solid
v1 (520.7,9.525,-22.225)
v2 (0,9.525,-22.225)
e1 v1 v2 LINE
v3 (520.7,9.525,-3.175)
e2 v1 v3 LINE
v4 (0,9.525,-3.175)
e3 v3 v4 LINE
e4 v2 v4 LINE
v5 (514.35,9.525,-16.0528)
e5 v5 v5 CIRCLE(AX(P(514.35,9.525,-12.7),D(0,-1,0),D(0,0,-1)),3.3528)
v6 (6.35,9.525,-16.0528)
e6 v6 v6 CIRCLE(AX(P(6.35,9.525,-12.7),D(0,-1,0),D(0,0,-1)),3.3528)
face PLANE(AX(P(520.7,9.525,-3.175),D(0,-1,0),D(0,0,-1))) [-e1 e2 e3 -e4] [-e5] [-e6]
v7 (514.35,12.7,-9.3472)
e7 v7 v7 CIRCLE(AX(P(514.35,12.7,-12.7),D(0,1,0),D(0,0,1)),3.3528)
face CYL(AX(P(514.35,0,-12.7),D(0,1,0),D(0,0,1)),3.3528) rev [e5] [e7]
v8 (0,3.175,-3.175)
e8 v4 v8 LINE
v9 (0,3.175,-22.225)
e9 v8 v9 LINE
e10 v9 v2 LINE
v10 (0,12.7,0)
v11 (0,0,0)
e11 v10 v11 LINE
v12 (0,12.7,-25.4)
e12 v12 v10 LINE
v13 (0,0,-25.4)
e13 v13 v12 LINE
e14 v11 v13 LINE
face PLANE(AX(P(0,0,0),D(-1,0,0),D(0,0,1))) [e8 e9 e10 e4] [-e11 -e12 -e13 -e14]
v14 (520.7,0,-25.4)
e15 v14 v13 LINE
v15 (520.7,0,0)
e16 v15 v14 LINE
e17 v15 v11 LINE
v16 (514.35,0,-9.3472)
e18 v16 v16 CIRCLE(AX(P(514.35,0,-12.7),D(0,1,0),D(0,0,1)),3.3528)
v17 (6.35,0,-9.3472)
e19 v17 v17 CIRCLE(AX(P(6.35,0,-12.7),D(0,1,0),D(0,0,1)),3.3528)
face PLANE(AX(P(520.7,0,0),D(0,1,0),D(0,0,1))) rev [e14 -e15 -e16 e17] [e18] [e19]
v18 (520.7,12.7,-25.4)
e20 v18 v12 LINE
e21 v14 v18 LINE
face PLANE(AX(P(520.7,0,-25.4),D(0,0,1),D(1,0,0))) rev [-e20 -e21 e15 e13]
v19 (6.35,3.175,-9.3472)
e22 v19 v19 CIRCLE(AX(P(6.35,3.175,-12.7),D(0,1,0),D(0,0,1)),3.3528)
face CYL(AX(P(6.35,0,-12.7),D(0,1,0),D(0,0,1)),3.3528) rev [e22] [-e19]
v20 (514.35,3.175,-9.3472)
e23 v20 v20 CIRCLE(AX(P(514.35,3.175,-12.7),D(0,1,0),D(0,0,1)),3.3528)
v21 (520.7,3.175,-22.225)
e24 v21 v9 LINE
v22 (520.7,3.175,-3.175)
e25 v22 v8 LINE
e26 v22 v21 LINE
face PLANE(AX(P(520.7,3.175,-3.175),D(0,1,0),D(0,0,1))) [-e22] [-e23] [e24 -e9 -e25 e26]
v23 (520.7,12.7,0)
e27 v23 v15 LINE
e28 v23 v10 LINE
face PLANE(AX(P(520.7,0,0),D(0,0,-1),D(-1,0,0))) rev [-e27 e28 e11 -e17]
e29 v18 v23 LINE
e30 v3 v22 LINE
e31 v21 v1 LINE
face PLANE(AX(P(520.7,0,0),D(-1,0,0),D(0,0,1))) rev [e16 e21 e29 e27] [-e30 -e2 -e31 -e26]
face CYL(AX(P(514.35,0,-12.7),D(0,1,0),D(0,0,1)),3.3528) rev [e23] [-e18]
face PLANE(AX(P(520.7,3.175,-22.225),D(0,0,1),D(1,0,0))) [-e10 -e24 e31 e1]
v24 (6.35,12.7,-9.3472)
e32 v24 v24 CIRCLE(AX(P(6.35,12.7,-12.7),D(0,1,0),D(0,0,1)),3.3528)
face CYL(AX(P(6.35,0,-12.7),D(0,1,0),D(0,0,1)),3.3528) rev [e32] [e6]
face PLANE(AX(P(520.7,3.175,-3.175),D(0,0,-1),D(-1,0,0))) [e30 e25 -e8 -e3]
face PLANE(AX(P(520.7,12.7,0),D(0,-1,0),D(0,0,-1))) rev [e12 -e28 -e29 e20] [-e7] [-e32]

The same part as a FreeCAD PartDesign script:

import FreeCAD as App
import Part
import Sketcher
Q = App.Units.Quantity

doc = App.newDocument("Part")
body = doc.addObject("PartDesign::Body", "Body")

# Sketch on YZ plane
sketch1 = doc.addObject("Sketcher::SketchObject", "Sketch")
body.addObject(sketch1)
sketch1.AttachmentSupport = (doc.YZ_Plane, [""])
sketch1.MapMode = "FlatFace"
sketch1.addGeometry(Part.LineSegment(App.Vector(13, 0, 0), App.Vector(0, 0, 0)), False)
sketch1.addGeometry(Part.LineSegment(App.Vector(0, 0, 0), App.Vector(0, -25, 0)), False)
sketch1.addGeometry(Part.LineSegment(App.Vector(0, -25, 0), App.Vector(13, -25, 0)), False)
sketch1.addGeometry(Part.LineSegment(App.Vector(13, -25, 0), App.Vector(13, 0, 0)), False)
sketch1.addGeometry(Part.LineSegment(App.Vector(3, -22, 0), App.Vector(3, -3, 0)), False)
sketch1.addGeometry(Part.LineSegment(App.Vector(3, -3, 0), App.Vector(10, -3, 0)), False)
sketch1.addGeometry(Part.LineSegment(App.Vector(10, -3, 0), App.Vector(10, -22, 0)), False)
sketch1.addGeometry(Part.LineSegment(App.Vector(10, -22, 0), App.Vector(3, -22, 0)), False)
sketch1.addConstraint(Sketcher.Constraint("Coincident", 0, 2, 1, 1))
sketch1.addConstraint(Sketcher.Constraint("Coincident", 1, 2, 2, 1))
sketch1.addConstraint(Sketcher.Constraint("Coincident", 2, 2, 3, 1))
sketch1.addConstraint(Sketcher.Constraint("Coincident", 3, 2, 0, 1))
sketch1.addConstraint(Sketcher.Constraint("Coincident", 4, 2, 5, 1))
sketch1.addConstraint(Sketcher.Constraint("Coincident", 5, 2, 6, 1))
sketch1.addConstraint(Sketcher.Constraint("Coincident", 6, 2, 7, 1))
sketch1.addConstraint(Sketcher.Constraint("Coincident", 7, 2, 4, 1))
sketch1.addConstraint(Sketcher.Constraint("Horizontal", 0))
sketch1.addConstraint(Sketcher.Constraint("Vertical", 1))
sketch1.addConstraint(Sketcher.Constraint("Horizontal", 2))
sketch1.addConstraint(Sketcher.Constraint("Vertical", 3))
sketch1.addConstraint(Sketcher.Constraint("Vertical", 4))
sketch1.addConstraint(Sketcher.Constraint("Horizontal", 5))
sketch1.addConstraint(Sketcher.Constraint("Vertical", 6))
sketch1.addConstraint(Sketcher.Constraint("Horizontal", 7))
sketch1.addConstraint(Sketcher.Constraint("Coincident", 0, 2, -1, 1))
sketch1.addConstraint(Sketcher.Constraint("DistanceY", 1, 2, 1, 1, Q("1 in")))
sketch1.addConstraint(Sketcher.Constraint("DistanceX", 0, 2, 0, 1, Q("0.5 in")))
sketch1.addConstraint(Sketcher.Constraint("DistanceX", 5, 1, 5, 2, Q("0.25 in")))
sketch1.addConstraint(Sketcher.Constraint("DistanceY", 4, 1, 4, 2, Q("0.75 in")))
sketch1.addConstraint(Sketcher.Constraint("DistanceX", -1, 1, 4, 2, Q("0.125 in")))
sketch1.addConstraint(Sketcher.Constraint("DistanceY", 4, 2, -1, 1, Q("0.125 in")))
pad1 = doc.addObject("PartDesign::Pad", "Pad")
body.addObject(pad1)
pad1.Profile = sketch1
pad1.Length = Q("20.5 in")

# Sketch on XZ plane
sketch2 = doc.addObject("Sketcher::SketchObject", "Sketch001")
body.addObject(sketch2)
sketch2.AttachmentSupport = (doc.XZ_Plane, [""])
sketch2.MapMode = "FlatFace"
sketch2.AttachmentOffset = App.Placement(App.Vector(0, 0, -0.5 * 25.4), App.Rotation())
sketch2.addGeometry(Part.Circle(App.Vector(6.3, -12.7, 0), App.Vector(0, 0, 1), 3.4), False)
sketch2.addGeometry(Part.Circle(App.Vector(514.4, -12.7, 0), App.Vector(0, 0, 1), 3.4), False)
sketch2.addConstraint(Sketcher.Constraint("Equal", 0, 1))
sketch2.addConstraint(Sketcher.Constraint("Horizontal", 0, 3, 1, 3))
sketch2.addConstraint(Sketcher.Constraint("Diameter", 0, Q("0.264 in")))
sketch2.addConstraint(Sketcher.Constraint("DistanceX", 0, 3, 1, 3, Q("20 in")))
sketch2.addConstraint(Sketcher.Constraint("DistanceY", 0, 3, -1, 1, Q("0.5 in")))
sketch2.addConstraint(Sketcher.Constraint("DistanceX", -1, 1, 0, 3, Q("0.25 in")))
pocket1 = doc.addObject("PartDesign::Pocket", "Pocket")
body.addObject(pocket1)
pocket1.Profile = sketch2
pocket1.Type = "ThroughAll"
pocket1.Reversed = True

doc.recompute()
